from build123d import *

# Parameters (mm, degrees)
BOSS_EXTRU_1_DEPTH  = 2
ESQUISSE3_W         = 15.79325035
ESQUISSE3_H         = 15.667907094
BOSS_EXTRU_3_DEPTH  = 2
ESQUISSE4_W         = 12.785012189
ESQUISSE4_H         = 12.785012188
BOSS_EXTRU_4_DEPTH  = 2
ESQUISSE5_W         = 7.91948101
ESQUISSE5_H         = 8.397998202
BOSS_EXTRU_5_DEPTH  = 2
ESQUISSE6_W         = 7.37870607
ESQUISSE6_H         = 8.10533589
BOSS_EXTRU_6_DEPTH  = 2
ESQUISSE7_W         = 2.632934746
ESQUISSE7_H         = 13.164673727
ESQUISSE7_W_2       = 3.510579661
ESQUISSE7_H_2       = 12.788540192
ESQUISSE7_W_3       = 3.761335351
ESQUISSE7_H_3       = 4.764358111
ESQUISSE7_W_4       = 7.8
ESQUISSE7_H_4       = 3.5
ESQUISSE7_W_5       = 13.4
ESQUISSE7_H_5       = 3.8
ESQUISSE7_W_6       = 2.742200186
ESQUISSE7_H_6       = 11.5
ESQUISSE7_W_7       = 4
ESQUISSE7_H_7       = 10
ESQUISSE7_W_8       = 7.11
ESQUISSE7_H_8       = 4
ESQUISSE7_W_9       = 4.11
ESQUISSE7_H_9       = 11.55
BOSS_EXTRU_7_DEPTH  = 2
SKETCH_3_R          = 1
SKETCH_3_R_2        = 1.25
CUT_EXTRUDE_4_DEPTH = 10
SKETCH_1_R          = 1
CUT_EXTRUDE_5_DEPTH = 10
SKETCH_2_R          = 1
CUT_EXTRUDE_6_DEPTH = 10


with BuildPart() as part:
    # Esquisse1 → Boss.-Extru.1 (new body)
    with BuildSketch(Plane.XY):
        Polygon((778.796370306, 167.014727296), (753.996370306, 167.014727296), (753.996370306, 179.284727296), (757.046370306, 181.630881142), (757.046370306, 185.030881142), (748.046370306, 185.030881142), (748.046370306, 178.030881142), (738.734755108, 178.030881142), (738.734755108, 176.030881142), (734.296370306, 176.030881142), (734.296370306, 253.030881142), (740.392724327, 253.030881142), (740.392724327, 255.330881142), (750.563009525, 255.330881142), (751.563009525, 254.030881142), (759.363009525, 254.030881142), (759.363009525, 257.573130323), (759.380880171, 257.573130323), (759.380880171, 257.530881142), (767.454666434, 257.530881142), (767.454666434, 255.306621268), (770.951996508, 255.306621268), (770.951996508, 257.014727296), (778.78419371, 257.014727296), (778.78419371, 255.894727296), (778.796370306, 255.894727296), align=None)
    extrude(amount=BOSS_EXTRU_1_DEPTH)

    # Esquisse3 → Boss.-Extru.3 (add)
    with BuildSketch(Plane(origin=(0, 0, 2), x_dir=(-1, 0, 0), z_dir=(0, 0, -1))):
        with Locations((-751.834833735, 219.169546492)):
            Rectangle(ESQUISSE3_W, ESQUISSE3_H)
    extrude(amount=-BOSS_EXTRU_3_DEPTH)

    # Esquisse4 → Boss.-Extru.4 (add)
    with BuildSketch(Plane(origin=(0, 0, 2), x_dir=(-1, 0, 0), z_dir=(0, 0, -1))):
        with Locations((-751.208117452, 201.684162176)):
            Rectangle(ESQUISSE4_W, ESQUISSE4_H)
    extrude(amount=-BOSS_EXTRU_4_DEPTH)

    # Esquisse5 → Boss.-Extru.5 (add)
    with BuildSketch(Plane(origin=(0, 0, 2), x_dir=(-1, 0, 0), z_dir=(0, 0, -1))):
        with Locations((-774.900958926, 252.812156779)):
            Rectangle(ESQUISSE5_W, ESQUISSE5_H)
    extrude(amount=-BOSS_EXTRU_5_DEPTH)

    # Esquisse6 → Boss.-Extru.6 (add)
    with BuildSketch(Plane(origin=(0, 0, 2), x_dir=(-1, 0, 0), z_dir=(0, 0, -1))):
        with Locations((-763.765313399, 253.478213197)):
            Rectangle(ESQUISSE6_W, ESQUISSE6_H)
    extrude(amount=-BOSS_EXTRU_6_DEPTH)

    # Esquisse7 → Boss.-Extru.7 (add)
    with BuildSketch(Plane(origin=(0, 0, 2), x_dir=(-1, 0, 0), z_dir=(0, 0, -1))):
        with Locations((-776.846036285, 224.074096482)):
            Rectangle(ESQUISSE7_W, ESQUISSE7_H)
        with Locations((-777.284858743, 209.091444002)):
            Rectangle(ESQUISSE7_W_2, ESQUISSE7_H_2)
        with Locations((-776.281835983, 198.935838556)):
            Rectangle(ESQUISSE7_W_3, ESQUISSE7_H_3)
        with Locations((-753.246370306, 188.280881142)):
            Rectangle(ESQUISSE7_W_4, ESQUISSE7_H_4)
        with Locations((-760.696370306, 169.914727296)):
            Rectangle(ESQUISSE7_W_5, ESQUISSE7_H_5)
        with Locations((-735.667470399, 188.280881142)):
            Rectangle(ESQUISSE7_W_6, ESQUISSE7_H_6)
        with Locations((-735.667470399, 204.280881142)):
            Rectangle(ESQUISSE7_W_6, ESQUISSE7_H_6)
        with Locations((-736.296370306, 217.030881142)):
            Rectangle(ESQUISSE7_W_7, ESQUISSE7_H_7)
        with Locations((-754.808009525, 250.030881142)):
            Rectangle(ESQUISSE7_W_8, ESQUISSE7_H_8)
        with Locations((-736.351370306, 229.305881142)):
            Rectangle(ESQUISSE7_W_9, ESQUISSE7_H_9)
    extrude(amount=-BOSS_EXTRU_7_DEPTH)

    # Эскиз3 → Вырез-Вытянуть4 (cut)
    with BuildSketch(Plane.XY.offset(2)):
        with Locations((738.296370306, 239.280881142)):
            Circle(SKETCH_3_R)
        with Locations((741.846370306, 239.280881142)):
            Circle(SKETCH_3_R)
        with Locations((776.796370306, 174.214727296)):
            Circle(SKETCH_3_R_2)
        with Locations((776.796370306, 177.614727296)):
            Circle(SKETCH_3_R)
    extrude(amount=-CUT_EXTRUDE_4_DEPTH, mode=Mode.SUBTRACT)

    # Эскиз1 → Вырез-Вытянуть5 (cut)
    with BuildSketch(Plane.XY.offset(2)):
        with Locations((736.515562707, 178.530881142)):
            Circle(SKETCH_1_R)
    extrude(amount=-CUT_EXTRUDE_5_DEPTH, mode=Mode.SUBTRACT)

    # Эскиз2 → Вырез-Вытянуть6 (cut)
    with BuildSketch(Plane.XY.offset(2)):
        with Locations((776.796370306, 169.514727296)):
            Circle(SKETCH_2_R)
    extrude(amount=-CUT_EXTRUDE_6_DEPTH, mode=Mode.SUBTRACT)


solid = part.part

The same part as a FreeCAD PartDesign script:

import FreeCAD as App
import Part
import Sketcher
from FreeCAD import Vector
Q = App.Units.Quantity

doc = App.newDocument("Part")
body = doc.addObject("PartDesign::Body", "Body")

# Sketch on XY plane
sketch1 = doc.addObject("Sketcher::SketchObject", "Sketch")
body.addObject(sketch1)
sketch1.AttachmentSupport = (doc.XY_Plane, [""])
sketch1.MapMode = "FlatFace"
sketch1.addGeometry([
    Part.LineSegment(Vector(753.99637, 167.014727, 0), Vector(778.79637, 167.014727, 0)),  # 0
    Part.LineSegment(Vector(778.79637, 167.014727, 0), Vector(778.79637, 255.894727, 0)),  # 1
    Part.LineSegment(Vector(778.79637, 255.894727, 0), Vector(778.784194, 255.894727, 0)),  # 2
    Part.LineSegment(Vector(778.784194, 255.894727, 0), Vector(778.784194, 257.014727, 0)),  # 3
    Part.LineSegment(Vector(778.784194, 257.014727, 0), Vector(770.951997, 257.014727, 0)),  # 4
    Part.LineSegment(Vector(770.951997, 257.014727, 0), Vector(770.951997, 255.306621, 0)),  # 5
    Part.LineSegment(Vector(770.951997, 255.306621, 0), Vector(767.454666, 255.306621, 0)),  # 6
    Part.LineSegment(Vector(767.454666, 255.306621, 0), Vector(767.454666, 257.530881, 0)),  # 7
    Part.LineSegment(Vector(767.454666, 257.530881, 0), Vector(759.38088, 257.530881, 0)),  # 8
    Part.LineSegment(Vector(759.38088, 257.530881, 0), Vector(759.38088, 257.57313, 0)),  # 9
    Part.LineSegment(Vector(759.38088, 257.57313, 0), Vector(759.36301, 257.57313, 0)),  # 10
    Part.LineSegment(Vector(759.36301, 257.57313, 0), Vector(759.36301, 254.030881, 0)),  # 11
    Part.LineSegment(Vector(759.36301, 254.030881, 0), Vector(751.56301, 254.030881, 0)),  # 12
    Part.LineSegment(Vector(751.56301, 254.030881, 0), Vector(750.56301, 255.330881, 0)),  # 13
    Part.LineSegment(Vector(750.56301, 255.330881, 0), Vector(740.392724, 255.330881, 0)),  # 14
    Part.LineSegment(Vector(740.392724, 255.330881, 0), Vector(740.392724, 253.030881, 0)),  # 15
    Part.LineSegment(Vector(740.392724, 253.030881, 0), Vector(734.29637, 253.030881, 0)),  # 16
    Part.LineSegment(Vector(734.29637, 253.030881, 0), Vector(734.29637, 176.030881, 0)),  # 17
    Part.LineSegment(Vector(734.29637, 176.030881, 0), Vector(738.734755, 176.030881, 0)),  # 18
    Part.LineSegment(Vector(738.734755, 176.030881, 0), Vector(738.734755, 178.030881, 0)),  # 19
    Part.LineSegment(Vector(738.734755, 178.030881, 0), Vector(748.04637, 178.030881, 0)),  # 20
    Part.LineSegment(Vector(748.04637, 178.030881, 0), Vector(748.04637, 185.030881, 0)),  # 21
    Part.LineSegment(Vector(748.04637, 185.030881, 0), Vector(757.04637, 185.030881, 0)),  # 22
    Part.LineSegment(Vector(757.04637, 185.030881, 0), Vector(757.04637, 181.630881, 0)),  # 23
    Part.LineSegment(Vector(757.04637, 181.630881, 0), Vector(753.99637, 179.284727, 0)),  # 24
    Part.LineSegment(Vector(753.99637, 179.284727, 0), Vector(753.99637, 167.014727, 0)),  # 25
], False)
sketch1.addConstraint([
    Sketcher.Constraint("Coincident", 0, 2, 1, 1),
    Sketcher.Constraint("Coincident", 1, 2, 2, 1),
    Sketcher.Constraint("Coincident", 2, 2, 3, 1),
    Sketcher.Constraint("Coincident", 3, 2, 4, 1),
    Sketcher.Constraint("Coincident", 4, 2, 5, 1),
    Sketcher.Constraint("Coincident", 5, 2, 6, 1),
    Sketcher.Constraint("Coincident", 6, 2, 7, 1),
    Sketcher.Constraint("Coincident", 7, 2, 8, 1),
    Sketcher.Constraint("Coincident", 8, 2, 9, 1),
    Sketcher.Constraint("Coincident", 9, 2, 10, 1),
    Sketcher.Constraint("Coincident", 10, 2, 11, 1),
    Sketcher.Constraint("Coincident", 11, 2, 12, 1),
    Sketcher.Constraint("Coincident", 12, 2, 13, 1),
    Sketcher.Constraint("Coincident", 13, 2, 14, 1),
    Sketcher.Constraint("Coincident", 14, 2, 15, 1),
    Sketcher.Constraint("Coincident", 15, 2, 16, 1),
    Sketcher.Constraint("Coincident", 16, 2, 17, 1),
    Sketcher.Constraint("Coincident", 17, 2, 18, 1),
    Sketcher.Constraint("Coincident", 18, 2, 19, 1),
    Sketcher.Constraint("Coincident", 19, 2, 20, 1),
    Sketcher.Constraint("Coincident", 20, 2, 21, 1),
    Sketcher.Constraint("Coincident", 21, 2, 22, 1),
    Sketcher.Constraint("Coincident", 22, 2, 23, 1),
    Sketcher.Constraint("Coincident", 23, 2, 24, 1),
    Sketcher.Constraint("Coincident", 24, 2, 25, 1),
    Sketcher.Constraint("Coincident", 25, 2, 0, 1),
    Sketcher.Constraint("Horizontal", 0),
    Sketcher.Constraint("Vertical", 1),
    Sketcher.Constraint("Horizontal", 2),
    Sketcher.Constraint("Vertical", 3),
    Sketcher.Constraint("Horizontal", 4),
    Sketcher.Constraint("Vertical", 5),
    Sketcher.Constraint("Horizontal", 6),
    Sketcher.Constraint("Vertical", 7),
    Sketcher.Constraint("Horizontal", 8),
    Sketcher.Constraint("Vertical", 9),
    Sketcher.Constraint("Horizontal", 10),
    Sketcher.Constraint("Vertical", 11),
    Sketcher.Constraint("Horizontal", 12),
    Sketcher.Constraint("Horizontal", 14),
    Sketcher.Constraint("Vertical", 15),
    Sketcher.Constraint("Horizontal", 16),
    Sketcher.Constraint("Vertical", 17),
    Sketcher.Constraint("Horizontal", 18),
    Sketcher.Constraint("Vertical", 19),
    Sketcher.Constraint("Horizontal", 20),
    Sketcher.Constraint("Vertical", 21),
    Sketcher.Constraint("Horizontal", 22),
    Sketcher.Constraint("Vertical", 23),
    Sketcher.Constraint("Vertical", 25),
    Sketcher.Constraint("Perpendicular", 13, 24),
    Sketcher.Constraint("DistanceX", 22, 1, 22, 2, Q("9 mm")),
    Sketcher.Constraint("DistanceY", 17, 2, 17, 1, Q("77 mm")),
    Sketcher.Constraint("DistanceY", 19, 1, 19, 2, Q("2 mm")),
    Sketcher.Constraint("DistanceY", 21, 1, 21, 2, Q("7 mm")),
    Sketcher.Constraint("DistanceX", 0, 1, 0, 2, Q("24.8 mm")),
    Sketcher.Constraint("DistanceX", 12, 2, 12, 1, Q("7.8 mm")),
    Sketcher.Constraint("DistanceY", 15, 2, 15, 1, Q("2.3 mm")),
    Sketcher.Constraint("DistanceY", 23, 2, 23, 1, Q("3.4 mm")),
    Sketcher.Constraint("DistanceY", 0, 2, 3, 2, Q("90 mm")),
    Sketcher.Constraint("DistanceX", 13, 2, 12, 2, Q("1 mm")),
    Sketcher.Constraint("DistanceY", 15, 2, 12, 2, Q("1 mm")),
    Sketcher.Constraint("DistanceY", 1, 1, 1, 2, Q("88.88 mm")),
    Sketcher.Constraint("DistanceY", 25, 2, 25, 1, Q("12.27 mm")),
    Sketcher.Constraint("DistanceY", 11, 2, 8, 2, Q("3.5 mm")),
    Sketcher.Constraint("DistanceX", 17, 2, 0, 2, Q("44.5 mm")),
    Sketcher.Constraint("DistanceX", 17, 2, 20, 2, Q("13.75 mm")),
    Sketcher.Constraint("DistanceX", 6, 2, 6, 1, Q("3.49733 mm")),
    Sketcher.Constraint("DistanceX", 10, 2, 10, 1, Q("0.017871 mm")),
    Sketcher.Constraint("DistanceY", 7, 1, 7, 2, Q("2.22426 mm")),
    Sketcher.Constraint("DistanceY", 9, 1, 9, 2, Q("0.042249 mm")),
    Sketcher.Constraint("DistanceX", 2, 2, 2, 1, Q("0.012177 mm")),
    Sketcher.Constraint("DistanceX", 4, 2, 4, 1, Q("7.832197 mm")),
    Sketcher.Constraint("DistanceX", 8, 2, 8, 1, Q("8.073786 mm")),
    Sketcher.Constraint("DistanceX", 14, 2, 14, 1, Q("10.170285 mm")),
    Sketcher.Constraint("DistanceX", 18, 1, 18, 2, Q("4.438385 mm")),
    Sketcher.Constraint("DistanceX", -1, 1, 0, 2, Q("778.79637 mm")),
    Sketcher.Constraint("DistanceY", -1, 1, 5, 2, Q("255.306621 mm")),
])
pad1 = doc.addObject("PartDesign::Pad", "Pad")
body.addObject(pad1)
pad1.Profile = sketch1
pad1.Length = 2

# Sketch on XY plane
sketch2 = doc.addObject("Sketcher::SketchObject", "Sketch001")
body.addObject(sketch2)
sketch2.AttachmentSupport = (doc.XY_Plane, [""])
sketch2.MapMode = "FlatFace"
sketch2.AttachmentOffset = App.Placement(Vector(0, 0, 2), App.Rotation())
sketch2.addGeometry([
    Part.LineSegment(Vector(759.731459, 227.0035, 0), Vector(759.731459, 211.335593, 0)),
    Part.LineSegment(Vector(759.731459, 211.335593, 0), Vector(743.938209, 211.335593, 0)),
    Part.LineSegment(Vector(743.938209, 211.335593, 0), Vector(743.938209, 227.0035, 0)),
    Part.LineSegment(Vector(743.938209, 227.0035, 0), Vector(759.731459, 227.0035, 0)),
], False)
sketch2.addConstraint([
    Sketcher.Constraint("Coincident", 0, 2, 1, 1),
    Sketcher.Constraint("Coincident", 1, 2, 2, 1),
    Sketcher.Constraint("Coincident", 2, 2, 3, 1),
    Sketcher.Constraint("Coincident", 3, 2, 0, 1),
    Sketcher.Constraint("Vertical", 0),
    Sketcher.Constraint("Horizontal", 1),
    Sketcher.Constraint("Vertical", 2),
    Sketcher.Constraint("Horizontal", 3),
    Sketcher.Constraint("DistanceX", 1, 2, 1, 1, Q("15.79325 mm")),
    Sketcher.Constraint("DistanceY", -1, 1, 2, 2, Q("227.0035 mm")),
    Sketcher.Constraint("DistanceY", 0, 2, 0, 1, Q("15.667907 mm")),
    Sketcher.Constraint("DistanceX", -1, 1, 0, 2, Q("759.731459 mm")),
])
pad2 = doc.addObject("PartDesign::Pad", "Pad001")
body.addObject(pad2)
pad2.Profile = sketch2
pad2.Length = 2

# Sketch on XY plane
sketch3 = doc.addObject("Sketcher::SketchObject", "Sketch002")
body.addObject(sketch3)
sketch3.AttachmentSupport = (doc.XY_Plane, [""])
sketch3.MapMode = "FlatFace"
sketch3.AttachmentOffset = App.Placement(Vector(0, 0, 2), App.Rotation())
sketch3.addGeometry([
    Part.LineSegment(Vector(757.600624, 208.076668, 0), Vector(757.600624, 195.291656, 0)),
    Part.LineSegment(Vector(757.600624, 195.291656, 0), Vector(744.815611, 195.291656, 0)),
    Part.LineSegment(Vector(744.815611, 195.291656, 0), Vector(744.815611, 208.076668, 0)),
    Part.LineSegment(Vector(744.815611, 208.076668, 0), Vector(757.600624, 208.076668, 0)),
], False)
sketch3.addConstraint([
    Sketcher.Constraint("Coincident", 0, 2, 1, 1),
    Sketcher.Constraint("Coincident", 1, 2, 2, 1),
    Sketcher.Constraint("Coincident", 2, 2, 3, 1),
    Sketcher.Constraint("Coincident", 3, 2, 0, 1),
    Sketcher.Constraint("Vertical", 0),
    Sketcher.Constraint("Horizontal", 1),
    Sketcher.Constraint("Vertical", 2),
    Sketcher.Constraint("Horizontal", 3),
    Sketcher.Constraint("Equal", 3, 0),
    Sketcher.Constraint("DistanceX", 1, 2, 1, 1, Q("12.785012 mm")),
    Sketcher.Constraint("DistanceX", -1, 1, 1, 2, Q("744.815611 mm")),
    Sketcher.Constraint("DistanceY", -1, 1, 2, 2, Q("208.076668 mm")),
])
pad3 = doc.addObject("PartDesign::Pad", "Pad002")
body.addObject(pad3)
pad3.Profile = sketch3
pad3.Length = 2

# Sketch on XY plane
sketch4 = doc.addObject("Sketcher::SketchObject", "Sketch003")
body.addObject(sketch4)
sketch4.AttachmentSupport = (doc.XY_Plane, [""])
sketch4.MapMode = "FlatFace"
sketch4.AttachmentOffset = App.Placement(Vector(0, 0, 2), App.Rotation())
sketch4.addGeometry([
    Part.LineSegment(Vector(778.860699, 257.011156, 0), Vector(778.860699, 248.613158, 0)),
    Part.LineSegment(Vector(778.860699, 248.613158, 0), Vector(770.941218, 248.613158, 0)),
    Part.LineSegment(Vector(770.941218, 248.613158, 0), Vector(770.941218, 257.011156, 0)),
    Part.LineSegment(Vector(770.941218, 257.011156, 0), Vector(778.860699, 257.011156, 0)),
], False)
sketch4.addConstraint([
    Sketcher.Constraint("Coincident", 0, 2, 1, 1),
    Sketcher.Constraint("Coincident", 1, 2, 2, 1),
    Sketcher.Constraint("Coincident", 2, 2, 3, 1),
    Sketcher.Constraint("Coincident", 3, 2, 0, 1),
    Sketcher.Constraint("Vertical", 0),
    Sketcher.Constraint("Horizontal", 1),
    Sketcher.Constraint("Vertical", 2),
    Sketcher.Constraint("Horizontal", 3),
    Sketcher.Constraint("DistanceY", 0, 2, 0, 1, Q("8.397998 mm")),
    Sketcher.Constraint("DistanceX", 1, 2, 1, 1, Q("7.919481 mm")),
    Sketcher.Constraint("DistanceX", -1, 1, 0, 2, Q("778.860699 mm")),
    Sketcher.Constraint("DistanceY", -1, 1, 0, 2, Q("248.613158 mm")),
])
pad4 = doc.addObject("PartDesign::Pad", "Pad003")
body.addObject(pad4)
pad4.Profile = sketch4
pad4.Length = 2

# Sketch on XY plane
sketch5 = doc.addObject("Sketcher::SketchObject", "Sketch004")
body.addObject(sketch5)
sketch5.AttachmentSupport = (doc.XY_Plane, [""])
sketch5.MapMode = "FlatFace"
sketch5.AttachmentOffset = App.Placement(Vector(0, 0, 2), App.Rotation())
sketch5.addGeometry([
    Part.LineSegment(Vector(767.454666, 257.530881, 0), Vector(767.454666, 249.425545, 0)),
    Part.LineSegment(Vector(767.454666, 249.425545, 0), Vector(760.07596, 249.425545, 0)),
    Part.LineSegment(Vector(760.07596, 249.425545, 0), Vector(760.07596, 257.530881, 0)),
    Part.LineSegment(Vector(760.07596, 257.530881, 0), Vector(767.454666, 257.530881, 0)),
], False)
sketch5.addConstraint([
    Sketcher.Constraint("Coincident", 0, 2, 1, 1),
    Sketcher.Constraint("Coincident", 1, 2, 2, 1),
    Sketcher.Constraint("Coincident", 2, 2, 3, 1),
    Sketcher.Constraint("Coincident", 3, 2, 0, 1),
    Sketcher.Constraint("Vertical", 0),
    Sketcher.Constraint("Horizontal", 1),
    Sketcher.Constraint("Vertical", 2),
    Sketcher.Constraint("Horizontal", 3),
    Sketcher.Constraint("DistanceX", 1, 2, 1, 1, Q("7.378706 mm")),
    Sketcher.Constraint("DistanceY", 0, 2, 0, 1, Q("8.105336 mm")),
    Sketcher.Constraint("DistanceX", -1, 1, 1, 2, Q("760.07596 mm")),
    Sketcher.Constraint("DistanceY", -1, 1, 2, 2, Q("257.530881 mm")),
])
pad5 = doc.addObject("PartDesign::Pad", "Pad004")
body.addObject(pad5)
pad5.Profile = sketch5
pad5.Length = 2

# Sketch on XY plane
sketch6 = doc.addObject("Sketcher::SketchObject", "Sketch005")
body.addObject(sketch6)
sketch6.AttachmentSupport = (doc.XY_Plane, [""])
sketch6.MapMode = "FlatFace"
sketch6.AttachmentOffset = App.Placement(Vector(0, 0, 2), App.Rotation())
sketch6.addGeometry([
    Part.LineSegment(Vector(778.162504, 230.656433, 0), Vector(778.162504, 217.49176, 0)),  # 0
    Part.LineSegment(Vector(778.162504, 217.49176, 0), Vector(775.529569, 217.49176, 0)),  # 1
    Part.LineSegment(Vector(775.529569, 217.49176, 0), Vector(775.529569, 230.656433, 0)),  # 2
    Part.LineSegment(Vector(775.529569, 230.656433, 0), Vector(778.162504, 230.656433, 0)),  # 3
    Part.LineSegment(Vector(779.040149, 215.485714, 0), Vector(779.040149, 202.697174, 0)),  # 4
    Part.LineSegment(Vector(779.040149, 202.697174, 0), Vector(775.529569, 202.697174, 0)),  # 5
    Part.LineSegment(Vector(775.529569, 202.697174, 0), Vector(775.529569, 215.485714, 0)),  # 6
    Part.LineSegment(Vector(775.529569, 215.485714, 0), Vector(779.040149, 215.485714, 0)),  # 7
    Part.LineSegment(Vector(778.162504, 201.318018, 0), Vector(778.162504, 196.55366, 0)),  # 8
    Part.LineSegment(Vector(778.162504, 196.55366, 0), Vector(774.401168, 196.55366, 0)),  # 9
    Part.LineSegment(Vector(774.401168, 196.55366, 0), Vector(774.401168, 201.318018, 0)),  # 10
    Part.LineSegment(Vector(774.401168, 201.318018, 0), Vector(778.162504, 201.318018, 0)),  # 11
    Part.LineSegment(Vector(757.14637, 190.030881, 0), Vector(757.14637, 186.530881, 0)),  # 12
    Part.LineSegment(Vector(757.14637, 186.530881, 0), Vector(749.34637, 186.530881, 0)),  # 13
    Part.LineSegment(Vector(749.34637, 186.530881, 0), Vector(749.34637, 190.030881, 0)),  # 14
    Part.LineSegment(Vector(749.34637, 190.030881, 0), Vector(757.14637, 190.030881, 0)),  # 15
    Part.LineSegment(Vector(767.39637, 171.814727, 0), Vector(767.39637, 168.014727, 0)),  # 16
    Part.LineSegment(Vector(767.39637, 168.014727, 0), Vector(753.99637, 168.014727, 0)),  # 17
    Part.LineSegment(Vector(753.99637, 168.014727, 0), Vector(753.99637, 171.814727, 0)),  # 18
    Part.LineSegment(Vector(753.99637, 171.814727, 0), Vector(767.39637, 171.814727, 0)),  # 19
    Part.LineSegment(Vector(737.03857, 194.030881, 0), Vector(737.03857, 182.530881, 0)),  # 20
    Part.LineSegment(Vector(737.03857, 182.530881, 0), Vector(734.29637, 182.530881, 0)),  # 21
    Part.LineSegment(Vector(734.29637, 182.530881, 0), Vector(734.29637, 194.030881, 0)),  # 22
    Part.LineSegment(Vector(734.29637, 194.030881, 0), Vector(737.03857, 194.030881, 0)),  # 23
    Part.LineSegment(Vector(737.03857, 210.030881, 0), Vector(737.03857, 198.530881, 0)),  # 24
    Part.LineSegment(Vector(737.03857, 198.530881, 0), Vector(734.29637, 198.530881, 0)),  # 25
    Part.LineSegment(Vector(734.29637, 198.530881, 0), Vector(734.29637, 210.030881, 0)),  # 26
    Part.LineSegment(Vector(734.29637, 210.030881, 0), Vector(737.03857, 210.030881, 0)),  # 27
    Part.LineSegment(Vector(738.29637, 222.030881, 0), Vector(738.29637, 212.030881, 0)),  # 28
    Part.LineSegment(Vector(738.29637, 212.030881, 0), Vector(734.29637, 212.030881, 0)),  # 29
    Part.LineSegment(Vector(734.29637, 212.030881, 0), Vector(734.29637, 222.030881, 0)),  # 30
    Part.LineSegment(Vector(734.29637, 222.030881, 0), Vector(738.29637, 222.030881, 0)),  # 31
    Part.LineSegment(Vector(758.36301, 252.030881, 0), Vector(758.36301, 248.030881, 0)),  # 32
    Part.LineSegment(Vector(758.36301, 248.030881, 0), Vector(751.25301, 248.030881, 0)),  # 33
    Part.LineSegment(Vector(751.25301, 248.030881, 0), Vector(751.25301, 252.030881, 0)),  # 34
    Part.LineSegment(Vector(751.25301, 252.030881, 0), Vector(758.36301, 252.030881, 0)),  # 35
    Part.LineSegment(Vector(738.40637, 235.080881, 0), Vector(738.40637, 223.530881, 0)),  # 36
    Part.LineSegment(Vector(738.40637, 223.530881, 0), Vector(734.29637, 223.530881, 0)),  # 37
    Part.LineSegment(Vector(734.29637, 223.530881, 0), Vector(734.29637, 235.080881, 0)),  # 38
    Part.LineSegment(Vector(734.29637, 235.080881, 0), Vector(738.40637, 235.080881, 0)),  # 39
], False)
sketch6.addConstraint([
    Sketcher.Constraint("Coincident", 0, 2, 1, 1),
    Sketcher.Constraint("Coincident", 1, 2, 2, 1),
    Sketcher.Constraint("Coincident", 2, 2, 3, 1),
    Sketcher.Constraint("Coincident", 3, 2, 0, 1),
    Sketcher.Constraint("Coincident", 4, 2, 5, 1),
    Sketcher.Constraint("Coincident", 5, 2, 6, 1),
    Sketcher.Constraint("Coincident", 6, 2, 7, 1),
    Sketcher.Constraint("Coincident", 7, 2, 4, 1),
    Sketcher.Constraint("Coincident", 8, 2, 9, 1),
    Sketcher.Constraint("Coincident", 9, 2, 10, 1),
    Sketcher.Constraint("Coincident", 10, 2, 11, 1),
    Sketcher.Constraint("Coincident", 11, 2, 8, 1),
    Sketcher.Constraint("Coincident", 12, 2, 13, 1),
    Sketcher.Constraint("Coincident", 13, 2, 14, 1),
    Sketcher.Constraint("Coincident", 14, 2, 15, 1),
    Sketcher.Constraint("Coincident", 15, 2, 12, 1),
    Sketcher.Constraint("Coincident", 16, 2, 17, 1),
    Sketcher.Constraint("Coincident", 17, 2, 18, 1),
    Sketcher.Constraint("Coincident", 18, 2, 19, 1),
    Sketcher.Constraint("Coincident", 19, 2, 16, 1),
    Sketcher.Constraint("Coincident", 20, 2, 21, 1),
    Sketcher.Constraint("Coincident", 21, 2, 22, 1),
    Sketcher.Constraint("Coincident", 22, 2, 23, 1),
    Sketcher.Constraint("Coincident", 23, 2, 20, 1),
    Sketcher.Constraint("Coincident", 24, 2, 25, 1),
    Sketcher.Constraint("Coincident", 25, 2, 26, 1),
    Sketcher.Constraint("Coincident", 26, 2, 27, 1),
    Sketcher.Constraint("Coincident", 27, 2, 24, 1),
    Sketcher.Constraint("Coincident", 28, 2, 29, 1),
    Sketcher.Constraint("Coincident", 29, 2, 30, 1),
    Sketcher.Constraint("Coincident", 30, 2, 31, 1),
    Sketcher.Constraint("Coincident", 31, 2, 28, 1),
    Sketcher.Constraint("Coincident", 32, 2, 33, 1),
    Sketcher.Constraint("Coincident", 33, 2, 34, 1),
    Sketcher.Constraint("Coincident", 34, 2, 35, 1),
    Sketcher.Constraint("Coincident", 35, 2, 32, 1),
    Sketcher.Constraint("Coincident", 36, 2, 37, 1),
    Sketcher.Constraint("Coincident", 37, 2, 38, 1),
    Sketcher.Constraint("Coincident", 38, 2, 39, 1),
    Sketcher.Constraint("Coincident", 39, 2, 36, 1),
    Sketcher.Constraint("Vertical", 0),
    Sketcher.Constraint("Horizontal", 1),
    Sketcher.Constraint("Vertical", 2),
    Sketcher.Constraint("Horizontal", 3),
    Sketcher.Constraint("Vertical", 4),
    Sketcher.Constraint("Horizontal", 5),
    Sketcher.Constraint("Vertical", 6),
    Sketcher.Constraint("Horizontal", 7),
    Sketcher.Constraint("Vertical", 8),
    Sketcher.Constraint("Horizontal", 9),
    Sketcher.Constraint("Vertical", 10),
    Sketcher.Constraint("Horizontal", 11),
    Sketcher.Constraint("Vertical", 12),
    Sketcher.Constraint("Horizontal", 13),
    Sketcher.Constraint("Vertical", 14),
    Sketcher.Constraint("Horizontal", 15),
    Sketcher.Constraint("Vertical", 16),
    Sketcher.Constraint("Horizontal", 17),
    Sketcher.Constraint("Vertical", 18),
    Sketcher.Constraint("Horizontal", 19),
    Sketcher.Constraint("Vertical", 20),
    Sketcher.Constraint("Horizontal", 21),
    Sketcher.Constraint("Vertical", 22),
    Sketcher.Constraint("Horizontal", 23),
    Sketcher.Constraint("Vertical", 24),
    Sketcher.Constraint("Horizontal", 25),
    Sketcher.Constraint("Vertical", 26),
    Sketcher.Constraint("Horizontal", 27),
    Sketcher.Constraint("Vertical", 28),
    Sketcher.Constraint("Horizontal", 29),
    Sketcher.Constraint("Vertical", 30),
    Sketcher.Constraint("Horizontal", 31),
    Sketcher.Constraint("Vertical", 32),
    Sketcher.Constraint("Horizontal", 33),
    Sketcher.Constraint("Vertical", 34),
    Sketcher.Constraint("Horizontal", 35),
    Sketcher.Constraint("Vertical", 36),
    Sketcher.Constraint("Horizontal", 37),
    Sketcher.Constraint("Vertical", 38),
    Sketcher.Constraint("Horizontal", 39),
    Sketcher.Constraint("Vertical", 2, 2, 5, 2),
    Sketcher.Constraint("Vertical", 3, 2, 8, 2),
    Sketcher.Constraint("Vertical", 23, 2, 24, 2),
    Sketcher.Constraint("Vertical", 22, 2, 25, 2),
    Sketcher.Constraint("Vertical", 26, 2, 29, 2),
    Sketcher.Constraint("Vertical", 30, 2, 37, 2),
    Sketcher.Constraint("Equal", 22, 24),
    Sketcher.Constraint("Equal", 31, 32),
    Sketcher.Constraint("DistanceX", 29, 2, 29, 1, Q("4 mm")),
    Sketcher.Constraint("DistanceY", 28, 2, 28, 1, Q("10 mm")),
    Sketcher.Constraint("DistanceX", 13, 2, 13, 1, Q("7.8 mm")),
    Sketcher.Constraint("DistanceX", 17, 2, 17, 1, Q("13.4 mm")),
    Sketcher.Constraint("DistanceY", 12, 2, 12, 1, Q("3.5 mm")),
    Sketcher.Constraint("DistanceY", 16, 2, 16, 1, Q("3.8 mm")),
    Sketcher.Constraint("DistanceY", 20, 2, 20, 1, Q("11.5 mm")),
    Sketcher.Constraint("DistanceY", 20, 2, 13, 2, Q("4 mm")),
    Sketcher.Constraint("DistanceY", 20, 2, 24, 2, Q("16 mm")),
    Sketcher.Constraint("DistanceY", 27, 2, 28, 2, Q("2 mm")),
    Sketcher.Constraint("DistanceY", 31, 2, 32, 2, Q("26 mm")),
    Sketcher.Constraint("DistanceX", 33, 2, 33, 1, Q("7.11 mm")),
    Sketcher.Constraint("DistanceX", 37, 2, 37, 1, Q("4.11 mm")),
    Sketcher.Constraint("DistanceY", 36, 2, 36, 1, Q("11.55 mm")),
    Sketcher.Constraint("DistanceX", 21, 2, 18, 2, Q("19.7 mm")),
    Sketcher.Constraint("DistanceY", 31, 2, 36, 2, Q("1.5 mm")),
    Sketcher.Constraint("DistanceX", 12, 2, 16, 2, Q("10.25 mm")),
    Sketcher.Constraint("DistanceX", 21, 2, 21, 1, Q("2.7422 mm")),
    Sketcher.Constraint("DistanceX", 5, 2, 5, 1, Q("3.51058 mm")),
    Sketcher.Constraint("DistanceY", 4, 2, 4, 1, Q("12.78854 mm")),
    Sketcher.Constraint("DistanceY", 8, 2, 8, 1, Q("4.764358 mm")),
    Sketcher.Constraint("DistanceY", 8, 2, 0, 2, Q("20.9381 mm")),
    Sketcher.Constraint("DistanceX", 9, 2, 5, 2, Q("1.128401 mm")),
    Sketcher.Constraint("DistanceX", 12, 2, 9, 2, Q("17.254798 mm")),
    Sketcher.Constraint("DistanceX", 1, 2, 1, 1, Q("2.632935 mm")),
    Sketcher.Constraint("DistanceY", 0, 2, 0, 1, Q("13.164674 mm")),
    Sketcher.Constraint("DistanceY", -1, 1, 0, 2, Q("217.49176 mm")),
    Sketcher.Constraint("DistanceX", -1, 1, 1, 2, Q("775.529569 mm")),
    Sketcher.Constraint("DistanceY", -1, 1, 12, 2, Q("186.530881 mm")),
    Sketcher.Constraint("DistanceX", -1, 1, 32, 2, Q("758.36301 mm")),
    Sketcher.Constraint("DistanceY", 4, 2, 3, 2, Q("27.959259 mm")),
    Sketcher.Constraint("DistanceY", -1, 1, 16, 2, Q("168.014727 mm")),
])
pad6 = doc.addObject("PartDesign::Pad", "Pad005")
body.addObject(pad6)
pad6.Profile = sketch6
pad6.Length = 2

# Sketch on XY plane
sketch7 = doc.addObject("Sketcher::SketchObject", "Sketch006")
body.addObject(sketch7)
sketch7.AttachmentSupport = (doc.XY_Plane, [""])
sketch7.MapMode = "FlatFace"
sketch7.AttachmentOffset = App.Placement(Vector(0, 0, 2), App.Rotation())
sketch7.addGeometry([
    Part.Circle(Vector(738.29637, 239.280881, 0), Vector(0, 0, 1), 1),
    Part.Circle(Vector(741.84637, 239.280881, 0), Vector(0, 0, 1), 1),
    Part.Circle(Vector(776.79637, 174.214727, 0), Vector(0, 0, 1), 1.25),
    Part.Circle(Vector(776.79637, 177.614727, 0), Vector(0, 0, 1), 1),
], False)
sketch7.addConstraint([
    Sketcher.Constraint("Equal", 0, 1),
    Sketcher.Constraint("Equal", 1, 3),
    Sketcher.Constraint("Horizontal", 0, 3, 1, 3),
    Sketcher.Constraint("Vertical", 2, 3, 3, 3),
    Sketcher.Constraint("Diameter", 0, Q("2 mm")),
    Sketcher.Constraint("Diameter", 2, Q("2.5 mm")),
    Sketcher.Constraint("DistanceX", 0, 3, 2, 3, Q("38.5 mm")),
    Sketcher.Constraint("DistanceY", 2, 3, 3, 3, Q("3.4 mm")),
    Sketcher.Constraint("DistanceX", 0, 3, 1, 3, Q("3.55 mm")),
    Sketcher.Constraint("DistanceX", -1, 1, 0, 3, Q("738.29637 mm")),
    Sketcher.Constraint("DistanceY", -1, 1, 0, 3, Q("239.280881 mm")),
    Sketcher.Constraint("DistanceY", -1, 1, 2, 3, Q("174.214727 mm")),
])
pocket1 = doc.addObject("PartDesign::Pocket", "Pocket")
body.addObject(pocket1)
pocket1.Profile = sketch7
pocket1.Length = 10

# Sketch on XY plane
sketch8 = doc.addObject("Sketcher::SketchObject", "Sketch007")
body.addObject(sketch8)
sketch8.AttachmentSupport = (doc.XY_Plane, [""])
sketch8.MapMode = "FlatFace"
sketch8.AttachmentOffset = App.Placement(Vector(0, 0, 2), App.Rotation())
sketch8.addGeometry(Part.Circle(Vector(736.515563, 178.530881, 0), Vector(0, 0, 1), 1), False)
sketch8.addConstraint([
    Sketcher.Constraint("Diameter", 0, Q("2 mm")),
    Sketcher.Constraint("DistanceY", -1, 1, 0, 3, Q("178.530881 mm")),
    Sketcher.Constraint("DistanceX", -1, 1, 0, 3, Q("736.515563 mm")),
])
pocket2 = doc.addObject("PartDesign::Pocket", "Pocket001")
body.addObject(pocket2)
pocket2.Profile = sketch8
pocket2.Length = 10

# Sketch on XY plane
sketch9 = doc.addObject("Sketcher::SketchObject", "Sketch008")
body.addObject(sketch9)
sketch9.AttachmentSupport = (doc.XY_Plane, [""])
sketch9.MapMode = "FlatFace"
sketch9.AttachmentOffset = App.Placement(Vector(0, 0, 2), App.Rotation())
sketch9.addGeometry(Part.Circle(Vector(776.79637, 169.514727, 0), Vector(0, 0, 1), 1), False)
sketch9.addConstraint([
    Sketcher.Constraint("Diameter", 0, Q("2 mm")),
    Sketcher.Constraint("DistanceX", -1, 1, 0, 3, Q("776.79637 mm")),
    Sketcher.Constraint("DistanceY", -1, 1, 0, 3, Q("169.514727 mm")),
])
pocket3 = doc.addObject("PartDesign::Pocket", "Pocket002")
body.addObject(pocket3)
pocket3.Profile = sketch9
pocket3.Length = 10

doc.recompute()
